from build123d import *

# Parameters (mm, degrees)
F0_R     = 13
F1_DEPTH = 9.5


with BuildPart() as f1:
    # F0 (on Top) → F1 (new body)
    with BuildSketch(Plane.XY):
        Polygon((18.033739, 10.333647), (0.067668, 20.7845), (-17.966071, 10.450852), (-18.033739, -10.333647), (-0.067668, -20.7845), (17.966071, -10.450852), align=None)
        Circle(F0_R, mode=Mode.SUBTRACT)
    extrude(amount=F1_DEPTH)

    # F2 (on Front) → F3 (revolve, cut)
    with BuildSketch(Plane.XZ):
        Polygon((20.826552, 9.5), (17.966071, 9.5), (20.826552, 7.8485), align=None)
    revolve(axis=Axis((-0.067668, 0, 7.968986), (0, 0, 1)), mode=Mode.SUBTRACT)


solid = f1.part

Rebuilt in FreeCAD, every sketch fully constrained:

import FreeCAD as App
import Part
import Sketcher
Q = App.Units.Quantity


def add_polygon(sketch, points):
    """Adds a closed chain of lines whose ends are joined by coincident constraints."""
    first, n = sketch.GeometryCount, len(points)
    for a, b in zip(points, points[1:] + points[:1]):
        sketch.addGeometry(Part.LineSegment(App.Vector(*a, 0), App.Vector(*b, 0)), False)
    for i in range(n):
        sketch.addConstraint(Sketcher.Constraint("Coincident", first + i, 2, first + (i + 1) % n, 1))

doc = App.newDocument("Part")
params = doc.addObject("Spreadsheet::Sheet", "Params")
for row, (alias, value) in enumerate([
    ("sketch1_diameter", "26 mm"),
    ("pad1_length", "9.5 mm"),
    ("groove_angle", "360 deg"),
], start=1):
    params.set(f"A{row}", alias)
    params.set(f"B{row}", "=" + value)
    params.setAlias(f"B{row}", alias)

body = doc.addObject("PartDesign::Body", "Body")

sketch1 = body.newObject("Sketcher::SketchObject", "Sketch")
sketch1.AttachmentSupport = (doc.getObject("XY_Plane"), [""])
sketch1.MapMode = "FlatFace"
add_polygon(sketch1, [(18, 10), (0, 21), (-18, 10), (-18, -10), (0, -21), (18, -10)])
sketch1.addGeometry(Part.Circle(App.Vector(0, 0, 0), App.Vector(0, 0, 1), 13), False)
sketch1.addConstraint([
    Sketcher.Constraint("Coincident", 6, 3, -1, 1),
    Sketcher.Constraint("Symmetric", 0, 2, 3, 2, -1, 1),
    Sketcher.Constraint("Symmetric", 1, 2, 4, 2, -1, 1),
    Sketcher.Constraint("Symmetric", 2, 2, 5, 2, -1, 1),
    Sketcher.Constraint("Equal", 0, 1),
    Sketcher.Constraint("Equal", 1, 2),
    Sketcher.Constraint("Diameter", 6, Q("26 mm")),
    Sketcher.Constraint("DistanceY", 3, 2, 0, 2, Q("41.569 mm")),
    Sketcher.Constraint("DistanceY", 2, 2, 1, 2, Q("20.784499 mm")),
    Sketcher.Constraint("DistanceX", -1, 1, 0, 2, Q("0.067668 mm")),
    Sketcher.Constraint("DistanceX", 1, 2, -1, 1, Q("17.966071 mm")),
])
sketch1.setExpression("Constraints[12]", "Params.sketch1_diameter")
pad1 = body.newObject("PartDesign::Pad", "Pad")
pad1.Profile = sketch1
pad1.setExpression("Length", "Params.pad1_length")

sketch2 = body.newObject("Sketcher::SketchObject", "Sketch001")
sketch2.AttachmentSupport = (doc.getObject("XZ_Plane"), [""])
sketch2.MapMode = "FlatFace"
add_polygon(sketch2, [(20.8, 9.5), (18, 9.5), (20.8, 7.8)])
sketch2.addGeometry(Part.LineSegment(App.Vector(-0.1, 7.8, 0), App.Vector(-0.1, 9.5, 0)), True)
sketch2.addConstraint([
    Sketcher.Constraint("Horizontal", 0),
    Sketcher.Constraint("Vertical", 2),
    Sketcher.Constraint("Vertical", 3),
    Sketcher.Constraint("Horizontal", 1, 2, 3, 1),
    Sketcher.Constraint("Horizontal", 2, 2, 3, 2),
    Sketcher.Constraint("Angle", 1, Q("-30.000008 deg")),
    Sketcher.Constraint("DistanceY", -1, 1, 0, 2, Q("9.5 mm")),
    Sketcher.Constraint("Distance", 1, Q("3.302999 mm")),
    Sketcher.Constraint("DistanceX", -1, 1, 0, 2, Q("17.966071 mm")),
    Sketcher.Constraint("DistanceX", 3, 1, -1, 1, Q("0.067668 mm")),
])
groove = body.newObject("PartDesign::Groove", "Groove")
groove.Profile = sketch2
groove.ReferenceAxis = (sketch2, ["Axis0"])
groove.setExpression("Angle", "Params.groove_angle")

doc.recompute()
